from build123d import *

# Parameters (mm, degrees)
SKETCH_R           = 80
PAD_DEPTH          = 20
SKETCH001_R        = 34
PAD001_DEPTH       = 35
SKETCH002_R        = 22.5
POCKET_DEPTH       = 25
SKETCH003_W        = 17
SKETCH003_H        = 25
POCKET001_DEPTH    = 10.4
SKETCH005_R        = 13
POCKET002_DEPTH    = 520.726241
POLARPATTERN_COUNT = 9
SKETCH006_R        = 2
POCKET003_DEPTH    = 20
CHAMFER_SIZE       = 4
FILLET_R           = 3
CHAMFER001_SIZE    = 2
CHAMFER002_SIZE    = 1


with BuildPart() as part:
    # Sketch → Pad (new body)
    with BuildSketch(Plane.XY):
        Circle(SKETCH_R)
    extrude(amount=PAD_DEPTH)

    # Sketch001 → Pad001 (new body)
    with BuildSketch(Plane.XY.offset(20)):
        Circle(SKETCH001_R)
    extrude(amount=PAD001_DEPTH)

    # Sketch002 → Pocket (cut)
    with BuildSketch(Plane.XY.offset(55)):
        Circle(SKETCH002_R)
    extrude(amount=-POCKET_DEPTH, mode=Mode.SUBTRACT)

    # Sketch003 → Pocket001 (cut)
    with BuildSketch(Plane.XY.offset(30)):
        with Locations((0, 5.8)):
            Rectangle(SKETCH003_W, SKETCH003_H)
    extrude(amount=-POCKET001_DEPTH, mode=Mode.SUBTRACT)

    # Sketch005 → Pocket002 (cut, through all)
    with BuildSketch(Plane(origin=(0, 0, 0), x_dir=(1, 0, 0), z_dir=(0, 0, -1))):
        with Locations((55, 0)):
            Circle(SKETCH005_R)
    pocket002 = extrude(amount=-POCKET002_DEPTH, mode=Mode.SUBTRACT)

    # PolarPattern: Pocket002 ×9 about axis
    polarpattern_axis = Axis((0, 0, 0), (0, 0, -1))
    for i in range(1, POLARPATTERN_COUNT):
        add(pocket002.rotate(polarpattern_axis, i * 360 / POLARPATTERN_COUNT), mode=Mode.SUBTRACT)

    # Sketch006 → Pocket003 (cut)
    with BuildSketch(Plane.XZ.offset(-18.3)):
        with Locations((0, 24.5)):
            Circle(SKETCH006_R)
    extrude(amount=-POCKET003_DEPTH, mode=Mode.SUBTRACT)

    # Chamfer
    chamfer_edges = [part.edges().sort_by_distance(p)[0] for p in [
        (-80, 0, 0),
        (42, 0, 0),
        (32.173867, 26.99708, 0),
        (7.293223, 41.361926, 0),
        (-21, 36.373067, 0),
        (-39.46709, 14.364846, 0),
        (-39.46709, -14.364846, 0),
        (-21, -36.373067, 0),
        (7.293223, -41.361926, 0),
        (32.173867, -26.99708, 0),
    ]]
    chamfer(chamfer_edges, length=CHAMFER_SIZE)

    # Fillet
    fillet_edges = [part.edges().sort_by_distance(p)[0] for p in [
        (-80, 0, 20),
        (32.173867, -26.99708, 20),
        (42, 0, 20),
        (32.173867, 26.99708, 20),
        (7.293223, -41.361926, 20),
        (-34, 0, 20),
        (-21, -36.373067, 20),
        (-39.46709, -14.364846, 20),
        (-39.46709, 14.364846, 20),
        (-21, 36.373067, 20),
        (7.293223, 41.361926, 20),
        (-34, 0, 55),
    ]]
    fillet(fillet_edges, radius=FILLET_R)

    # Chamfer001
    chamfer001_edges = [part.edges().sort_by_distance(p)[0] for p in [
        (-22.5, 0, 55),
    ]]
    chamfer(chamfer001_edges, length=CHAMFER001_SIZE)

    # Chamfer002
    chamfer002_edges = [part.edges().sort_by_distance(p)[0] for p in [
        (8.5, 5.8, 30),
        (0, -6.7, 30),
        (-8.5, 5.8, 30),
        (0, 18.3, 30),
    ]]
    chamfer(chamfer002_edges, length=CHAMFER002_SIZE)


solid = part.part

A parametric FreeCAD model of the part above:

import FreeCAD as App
import Part
import Sketcher


def edges_at(feature, points):
    """Names of the edges that pass closest to the given points."""
    edges = feature.Shape.Edges
    near = lambda p: min(range(len(edges)), key=lambda i: edges[i].distToShape(Part.Vertex(*p))[0])
    return sorted({f"Edge{near(p) + 1}" for p in points})

doc = App.newDocument("Part")
body = doc.addObject("PartDesign::Body", "Body")

# Sketch on XY plane
sketch1 = body.newObject("Sketcher::SketchObject", "Sketch")
sketch1.AttachmentSupport = (doc.getObject("XY_Plane"), [""])
sketch1.MapMode = "FlatFace"
sketch1.addGeometry(Part.Circle(App.Vector(0, 0, 0), App.Vector(0, 0, 1), 80), False)
sketch1.addConstraint(Sketcher.Constraint("Coincident", 0, 3, -1, 1))
sketch1.addConstraint(Sketcher.Constraint("Diameter", 0, 160.0))
pad1 = body.newObject("PartDesign::Pad", "Pad")
pad1.Profile = sketch1
pad1.Length = 20

# Sketch on XY plane
sketch2 = body.newObject("Sketcher::SketchObject", "Sketch001")
sketch2.AttachmentSupport = (doc.getObject("XY_Plane"), [""])
sketch2.MapMode = "FlatFace"
sketch2.AttachmentOffset = App.Placement(App.Vector(0, 0, 20), App.Rotation())
sketch2.addGeometry(Part.Circle(App.Vector(0, 0, 0), App.Vector(0, 0, 1), 34), False)
sketch2.addConstraint(Sketcher.Constraint("Coincident", 0, 3, -1, 1))
sketch2.addConstraint(Sketcher.Constraint("Diameter", 0, 68.0))
pad2 = body.newObject("PartDesign::Pad", "Pad001")
pad2.Profile = sketch2
pad2.Length = 35

# Sketch on XY plane
sketch3 = body.newObject("Sketcher::SketchObject", "Sketch002")
sketch3.AttachmentSupport = (doc.getObject("XY_Plane"), [""])
sketch3.MapMode = "FlatFace"
sketch3.AttachmentOffset = App.Placement(App.Vector(0, 0, 55), App.Rotation())
sketch3.addGeometry(Part.Circle(App.Vector(0, 0, 0), App.Vector(0, 0, 1), 22), False)
sketch3.addConstraint(Sketcher.Constraint("Coincident", 0, 3, -1, 1))
sketch3.addConstraint(Sketcher.Constraint("Diameter", 0, 45.0))
pocket1 = body.newObject("PartDesign::Pocket", "Pocket")
pocket1.Profile = sketch3
pocket1.Length = 25

# Sketch on XY plane
sketch4 = body.newObject("Sketcher::SketchObject", "Sketch003")
sketch4.AttachmentSupport = (doc.getObject("XY_Plane"), [""])
sketch4.MapMode = "FlatFace"
sketch4.AttachmentOffset = App.Placement(App.Vector(0, 0, 30), App.Rotation())
sketch4.addGeometry(Part.LineSegment(App.Vector(-8, 18, 0), App.Vector(-8, -7, 0)), False)
sketch4.addGeometry(Part.LineSegment(App.Vector(-8, -7, 0), App.Vector(8, -7, 0)), False)
sketch4.addGeometry(Part.LineSegment(App.Vector(8, -7, 0), App.Vector(8, 18, 0)), False)
sketch4.addGeometry(Part.LineSegment(App.Vector(8, 18, 0), App.Vector(-8, 18, 0)), False)
sketch4.addConstraint(Sketcher.Constraint("Coincident", 0, 2, 1, 1))
sketch4.addConstraint(Sketcher.Constraint("Coincident", 1, 2, 2, 1))
sketch4.addConstraint(Sketcher.Constraint("Coincident", 2, 2, 3, 1))
sketch4.addConstraint(Sketcher.Constraint("Coincident", 3, 2, 0, 1))
sketch4.addConstraint(Sketcher.Constraint("Vertical", 0))
sketch4.addConstraint(Sketcher.Constraint("Horizontal", 1))
sketch4.addConstraint(Sketcher.Constraint("Vertical", 2))
sketch4.addConstraint(Sketcher.Constraint("Horizontal", 3))
sketch4.addConstraint(Sketcher.Constraint("DistanceX", 1, 1, 1, 2, 17.0))
sketch4.addConstraint(Sketcher.Constraint("DistanceY", 0, 2, 0, 1, 25.0))
sketch4.addConstraint(Sketcher.Constraint("DistanceX", 0, 2, -1, 1, 8.5))
sketch4.addConstraint(Sketcher.Constraint("DistanceY", 0, 2, -1, 1, 6.7))
pocket2 = body.newObject("PartDesign::Pocket", "Pocket001")
pocket2.Profile = sketch4
pocket2.Length = 10.4

# Sketch on XY plane
sketch5 = body.newObject("Sketcher::SketchObject", "Sketch004")
sketch5.AttachmentSupport = (doc.getObject("XY_Plane"), [""])
sketch5.MapMode = "FlatFace"
sketch5.addGeometry(Part.Circle(App.Vector(55, 0, 0), App.Vector(0, 0, 1), 13), False)
sketch5.addConstraint(Sketcher.Constraint("PointOnObject", 0, 3, -1))
sketch5.addConstraint(Sketcher.Constraint("Diameter", 0, 26.0))
sketch5.addConstraint(Sketcher.Constraint("DistanceX", -1, 1, 0, 3, 55.0))
pocket3 = body.newObject("PartDesign::Pocket", "Pocket002")
pocket3.Profile = sketch5
pocket3.Type = "ThroughAll"
pocket3.Reversed = True
doc.recompute()

polarpattern = body.newObject("PartDesign::PolarPattern", "PolarPattern")
polarpattern.Originals = [pocket3]
polarpattern.Axis = (doc.getObject("Z_Axis"), [""])
polarpattern.Angle = 360
polarpattern.Occurrences = 9
body.Tip = polarpattern

# Sketch on XZ plane
sketch6 = body.newObject("Sketcher::SketchObject", "Sketch005")
sketch6.AttachmentSupport = (doc.getObject("XZ_Plane"), [""])
sketch6.MapMode = "FlatFace"
sketch6.AttachmentOffset = App.Placement(App.Vector(0, 0, -18.3), App.Rotation())
sketch6.addGeometry(Part.Circle(App.Vector(0, 24.5, 0), App.Vector(0, 0, 1), 2), False)
sketch6.addConstraint(Sketcher.Constraint("PointOnObject", 0, 3, -2))
sketch6.addConstraint(Sketcher.Constraint("Diameter", 0, 4.0))
sketch6.addConstraint(Sketcher.Constraint("DistanceY", -1, 1, 0, 3, 24.5))
pocket4 = body.newObject("PartDesign::Pocket", "Pocket003")
pocket4.Profile = sketch6
pocket4.Length = 20
doc.recompute()

chamfer = body.newObject("PartDesign::Chamfer", "Chamfer")
chamfer.Base = (pocket4, edges_at(pocket4, [
    (-80, 0, 0),
    (42, 0, 0),
    (32.174, 26.997, 0),
    (7.293, 41.362, 0),
    (-21, 36.373, 0),
    (-39.467, 14.365, 0),
    (-39.467, -14.365, 0),
    (-21, -36.373, 0),
    (7.293, -41.362, 0),
    (32.174, -26.997, 0),
]))
chamfer.Size = 4
doc.recompute()

fillet = body.newObject("PartDesign::Fillet", "Fillet")
fillet.Base = (chamfer, edges_at(chamfer, [
    (-80, 0, 20),
    (32.174, -26.997, 20),
    (42, 0, 20),
    (32.174, 26.997, 20),
    (7.293, -41.362, 20),
    (-34, 0, 20),
    (-21, -36.373, 20),
    (-39.467, -14.365, 20),
    (-39.467, 14.365, 20),
    (-21, 36.373, 20),
    (7.293, 41.362, 20),
    (-34, 0, 55),
]))
fillet.Radius = 3
doc.recompute()

chamfer2 = body.newObject("PartDesign::Chamfer", "Chamfer001")
chamfer2.Base = (fillet, edges_at(fillet, [(-22.5, 0, 55)]))
chamfer2.Size = 2
doc.recompute()

chamfer3 = body.newObject("PartDesign::Chamfer", "Chamfer002")
chamfer3.Base = (chamfer2, edges_at(chamfer2, [
    (8.5, 5.8, 30),
    (0, -6.7, 30),
    (-8.5, 5.8, 30),
    (0, 18.3, 30),
]))
chamfer3.Size = 1

doc.recompute()
